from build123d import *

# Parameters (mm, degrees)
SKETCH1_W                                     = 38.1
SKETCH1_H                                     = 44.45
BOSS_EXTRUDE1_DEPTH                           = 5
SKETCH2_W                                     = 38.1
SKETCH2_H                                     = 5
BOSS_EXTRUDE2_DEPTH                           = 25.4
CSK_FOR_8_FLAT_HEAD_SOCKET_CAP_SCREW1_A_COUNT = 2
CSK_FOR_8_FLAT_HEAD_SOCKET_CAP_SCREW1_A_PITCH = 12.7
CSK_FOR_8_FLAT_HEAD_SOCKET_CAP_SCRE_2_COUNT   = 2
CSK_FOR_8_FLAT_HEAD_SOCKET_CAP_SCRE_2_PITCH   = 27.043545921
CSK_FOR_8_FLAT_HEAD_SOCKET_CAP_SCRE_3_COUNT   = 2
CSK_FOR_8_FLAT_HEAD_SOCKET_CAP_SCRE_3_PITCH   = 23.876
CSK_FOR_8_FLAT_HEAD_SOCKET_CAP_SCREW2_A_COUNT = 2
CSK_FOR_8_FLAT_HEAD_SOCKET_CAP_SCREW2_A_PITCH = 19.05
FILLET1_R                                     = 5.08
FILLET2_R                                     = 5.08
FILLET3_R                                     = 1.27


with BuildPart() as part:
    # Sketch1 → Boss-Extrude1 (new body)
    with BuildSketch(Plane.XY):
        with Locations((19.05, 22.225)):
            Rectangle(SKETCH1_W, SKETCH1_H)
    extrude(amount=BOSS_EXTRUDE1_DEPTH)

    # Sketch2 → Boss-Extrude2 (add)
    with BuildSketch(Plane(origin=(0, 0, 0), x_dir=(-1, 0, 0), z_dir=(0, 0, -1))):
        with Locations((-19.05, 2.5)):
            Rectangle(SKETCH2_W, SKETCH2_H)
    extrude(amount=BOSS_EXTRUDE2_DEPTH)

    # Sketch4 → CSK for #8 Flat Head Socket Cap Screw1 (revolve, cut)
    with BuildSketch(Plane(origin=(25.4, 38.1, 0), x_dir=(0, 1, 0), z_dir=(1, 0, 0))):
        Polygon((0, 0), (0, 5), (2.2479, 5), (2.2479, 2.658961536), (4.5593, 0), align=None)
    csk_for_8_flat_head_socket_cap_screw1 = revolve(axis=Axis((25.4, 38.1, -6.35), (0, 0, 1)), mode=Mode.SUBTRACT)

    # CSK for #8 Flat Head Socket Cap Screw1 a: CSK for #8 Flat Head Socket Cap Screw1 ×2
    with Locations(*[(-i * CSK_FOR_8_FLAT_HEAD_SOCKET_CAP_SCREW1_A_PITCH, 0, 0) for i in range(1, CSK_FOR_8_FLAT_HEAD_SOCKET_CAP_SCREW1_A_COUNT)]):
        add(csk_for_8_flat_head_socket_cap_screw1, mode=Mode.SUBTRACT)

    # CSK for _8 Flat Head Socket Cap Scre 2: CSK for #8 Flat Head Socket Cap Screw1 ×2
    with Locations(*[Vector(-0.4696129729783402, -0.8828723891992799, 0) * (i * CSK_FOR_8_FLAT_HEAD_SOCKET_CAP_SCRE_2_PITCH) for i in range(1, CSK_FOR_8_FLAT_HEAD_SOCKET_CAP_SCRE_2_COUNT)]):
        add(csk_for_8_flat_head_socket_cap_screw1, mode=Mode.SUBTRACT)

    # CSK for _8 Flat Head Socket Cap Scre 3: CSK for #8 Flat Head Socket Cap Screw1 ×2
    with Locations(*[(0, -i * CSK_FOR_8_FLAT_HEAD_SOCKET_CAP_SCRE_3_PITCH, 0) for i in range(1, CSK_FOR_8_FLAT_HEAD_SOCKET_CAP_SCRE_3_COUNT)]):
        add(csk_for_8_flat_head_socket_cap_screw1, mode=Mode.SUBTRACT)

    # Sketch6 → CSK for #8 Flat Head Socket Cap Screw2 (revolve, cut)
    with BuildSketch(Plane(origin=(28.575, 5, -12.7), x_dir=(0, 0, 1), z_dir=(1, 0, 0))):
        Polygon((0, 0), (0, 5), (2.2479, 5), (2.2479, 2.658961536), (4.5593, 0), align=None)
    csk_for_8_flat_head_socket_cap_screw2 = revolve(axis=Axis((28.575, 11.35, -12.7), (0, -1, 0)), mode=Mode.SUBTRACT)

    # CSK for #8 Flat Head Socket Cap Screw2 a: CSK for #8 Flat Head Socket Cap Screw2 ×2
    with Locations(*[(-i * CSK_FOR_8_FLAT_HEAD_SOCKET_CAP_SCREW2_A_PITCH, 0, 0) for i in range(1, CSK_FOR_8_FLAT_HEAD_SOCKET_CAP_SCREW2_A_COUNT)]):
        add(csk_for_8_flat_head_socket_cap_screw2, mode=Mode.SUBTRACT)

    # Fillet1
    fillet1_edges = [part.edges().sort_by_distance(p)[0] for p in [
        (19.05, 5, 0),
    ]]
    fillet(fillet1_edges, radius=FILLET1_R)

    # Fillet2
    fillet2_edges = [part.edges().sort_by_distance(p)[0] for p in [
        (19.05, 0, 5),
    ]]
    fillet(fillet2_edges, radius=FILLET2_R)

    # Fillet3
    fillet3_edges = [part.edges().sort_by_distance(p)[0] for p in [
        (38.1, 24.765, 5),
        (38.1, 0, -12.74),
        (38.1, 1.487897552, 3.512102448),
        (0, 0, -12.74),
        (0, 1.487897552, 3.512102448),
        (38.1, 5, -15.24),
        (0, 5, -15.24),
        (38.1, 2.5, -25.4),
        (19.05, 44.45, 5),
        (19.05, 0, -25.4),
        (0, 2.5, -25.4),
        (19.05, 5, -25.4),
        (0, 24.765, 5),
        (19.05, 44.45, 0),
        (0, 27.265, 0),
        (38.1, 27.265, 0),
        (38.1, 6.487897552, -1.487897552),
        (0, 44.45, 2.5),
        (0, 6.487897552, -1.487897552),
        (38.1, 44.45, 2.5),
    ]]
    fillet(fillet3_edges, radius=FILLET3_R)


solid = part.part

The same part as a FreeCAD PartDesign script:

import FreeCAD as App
import Part
import Sketcher
Q = App.Units.Quantity


def edges_at(feature, points):
    """Names of the edges that pass closest to the given points."""
    edges = feature.Shape.Edges
    near = lambda p: min(range(len(edges)), key=lambda i: edges[i].distToShape(Part.Vertex(*p))[0])
    return sorted({f"Edge{near(p) + 1}" for p in points})

doc = App.newDocument("Part")
params = doc.addObject("Spreadsheet::Sheet", "Params")
for row, (alias, value) in enumerate([
    ("sketch1_width", "1.5 in"),
    ("sketch1_height", "1.75 in"),
    ("pad1_length", "5 mm"),
    ("sketch2_width", "1.5 in"),
    ("pad2_length", "1 in"),
    ("groove_angle", "360 deg"),
    ("linearpattern_pitch", "0.5 in"),
    ("linearpattern2_pitch", "27.043546 mm"),
    ("linearpattern3_pitch", "0.94 in"),
    ("groove2_angle", "360 deg"),
    ("linearpattern4_pitch", "0.75 in"),
    ("fillet_radius", "0.2 in"),
    ("fillet2_radius", "0.2 in"),
    ("fillet3_radius", "0.05 in"),
], start=1):
    params.set(f"A{row}", alias)
    params.set(f"B{row}", "=" + value)
    params.setAlias(f"B{row}", alias)

body = doc.addObject("PartDesign::Body", "Body")

# Sketch on XY plane
sketch1 = body.newObject("Sketcher::SketchObject", "Sketch")
sketch1.AttachmentSupport = (doc.getObject("XY_Plane"), [""])
sketch1.MapMode = "FlatFace"
sketch1.addGeometry(Part.LineSegment(App.Vector(0, 44.45, 0), App.Vector(0, 0, 0)), False)
sketch1.addGeometry(Part.LineSegment(App.Vector(0, 0, 0), App.Vector(38.1, 0, 0)), False)
sketch1.addGeometry(Part.LineSegment(App.Vector(38.1, 0, 0), App.Vector(38.1, 44.45, 0)), False)
sketch1.addGeometry(Part.LineSegment(App.Vector(38.1, 44.45, 0), App.Vector(0, 44.45, 0)), False)
sketch1.addConstraint(Sketcher.Constraint("Coincident", 0, 2, 1, 1))
sketch1.addConstraint(Sketcher.Constraint("Coincident", 1, 2, 2, 1))
sketch1.addConstraint(Sketcher.Constraint("Coincident", 2, 2, 3, 1))
sketch1.addConstraint(Sketcher.Constraint("Coincident", 3, 2, 0, 1))
sketch1.addConstraint(Sketcher.Constraint("Vertical", 0))
sketch1.addConstraint(Sketcher.Constraint("Horizontal", 1))
sketch1.addConstraint(Sketcher.Constraint("Vertical", 2))
sketch1.addConstraint(Sketcher.Constraint("Horizontal", 3))
sketch1.addConstraint(Sketcher.Constraint("Coincident", 0, 2, -1, 1))
sketch1.addConstraint(Sketcher.Constraint("DistanceX", 1, 1, 1, 2, Q("1.5 in")))
sketch1.addConstraint(Sketcher.Constraint("DistanceY", 0, 2, 0, 1, Q("1.75 in")))
sketch1.setExpression("Constraints[9]", "Params.sketch1_width")
sketch1.setExpression("Constraints[10]", "Params.sketch1_height")
pad1 = body.newObject("PartDesign::Pad", "Pad")
pad1.Profile = sketch1
pad1.setExpression("Length", "Params.pad1_length")

# Sketch on XY plane
sketch2 = body.newObject("Sketcher::SketchObject", "Sketch001")
sketch2.AttachmentSupport = (doc.getObject("XY_Plane"), [""])
sketch2.MapMode = "FlatFace"
sketch2.addGeometry(Part.LineSegment(App.Vector(38.1, 5, 0), App.Vector(38.1, 0, 0)), False)
sketch2.addGeometry(Part.LineSegment(App.Vector(38.1, 0, 0), App.Vector(0, 0, 0)), False)
sketch2.addGeometry(Part.LineSegment(App.Vector(0, 0, 0), App.Vector(0, 5, 0)), False)
sketch2.addGeometry(Part.LineSegment(App.Vector(0, 5, 0), App.Vector(38.1, 5, 0)), False)
sketch2.addConstraint(Sketcher.Constraint("Coincident", 0, 2, 1, 1))
sketch2.addConstraint(Sketcher.Constraint("Coincident", 1, 2, 2, 1))
sketch2.addConstraint(Sketcher.Constraint("Coincident", 2, 2, 3, 1))
sketch2.addConstraint(Sketcher.Constraint("Coincident", 3, 2, 0, 1))
sketch2.addConstraint(Sketcher.Constraint("Vertical", 0))
sketch2.addConstraint(Sketcher.Constraint("Horizontal", 1))
sketch2.addConstraint(Sketcher.Constraint("Vertical", 2))
sketch2.addConstraint(Sketcher.Constraint("Horizontal", 3))
sketch2.addConstraint(Sketcher.Constraint("Coincident", 1, 2, -1, 1))
sketch2.addConstraint(Sketcher.Constraint("DistanceX", 1, 2, 1, 1, Q("1.5 in")))
sketch2.addConstraint(Sketcher.Constraint("DistanceY", 0, 2, 0, 1, Q("5 mm")))
sketch2.setExpression("Constraints[9]", "Params.sketch2_width")
pad2 = body.newObject("PartDesign::Pad", "Pad001")
pad2.Profile = sketch2
pad2.setExpression("Length", "Params.pad2_length")
pad2.Reversed = True

# Sketch on YZ plane
sketch3 = body.newObject("Sketcher::SketchObject", "Sketch002")
sketch3.AttachmentSupport = (doc.getObject("YZ_Plane"), [""])
sketch3.MapMode = "FlatFace"
sketch3.AttachmentOffset = App.Placement(App.Vector(0, 0, 1 * 25.4), App.Rotation())
sketch3.addGeometry(Part.LineSegment(App.Vector(38.1, 5, 0), App.Vector(38.1, 0, 0)), False)
sketch3.addGeometry(Part.LineSegment(App.Vector(38.1, 0, 0), App.Vector(42.6593, 0, 0)), False)
sketch3.addGeometry(Part.LineSegment(App.Vector(42.6593, 0, 0), App.Vector(40.3479, 2.658962, 0)), False)
sketch3.addGeometry(Part.LineSegment(App.Vector(40.3479, 2.658962, 0), App.Vector(40.3479, 5, 0)), False)
sketch3.addGeometry(Part.LineSegment(App.Vector(40.3479, 5, 0), App.Vector(38.1, 5, 0)), False)
sketch3.addGeometry(Part.LineSegment(App.Vector(38.1, 0, 0), App.Vector(38.1, 5, 0)), True)  # axis
sketch3.addConstraint(Sketcher.Constraint("Coincident", 0, 2, 1, 1))
sketch3.addConstraint(Sketcher.Constraint("Coincident", 1, 2, 2, 1))
sketch3.addConstraint(Sketcher.Constraint("Coincident", 2, 2, 3, 1))
sketch3.addConstraint(Sketcher.Constraint("Coincident", 3, 2, 4, 1))
sketch3.addConstraint(Sketcher.Constraint("Coincident", 4, 2, 0, 1))
sketch3.addConstraint(Sketcher.Constraint("Vertical", 0))
sketch3.addConstraint(Sketcher.Constraint("Horizontal", 1))
sketch3.addConstraint(Sketcher.Constraint("Vertical", 3))
sketch3.addConstraint(Sketcher.Constraint("Horizontal", 4))
sketch3.addConstraint(Sketcher.Constraint("Vertical", 5))
sketch3.addConstraint(Sketcher.Constraint("Coincident", 5, 1, 0, 2))
sketch3.addConstraint(Sketcher.Constraint("PointOnObject", 0, 2, -1))
sketch3.addConstraint(Sketcher.Constraint("Horizontal", 3, 2, 5, 2))
sketch3.addConstraint(Sketcher.Constraint("Angle", 2, Q("131 deg")))
sketch3.addConstraint(Sketcher.Constraint("DistanceX", -1, 1, 0, 2, Q("1.5 in")))
sketch3.addConstraint(Sketcher.Constraint("DistanceX", 1, 1, 1, 2, Q("0.1795 in")))
sketch3.addConstraint(Sketcher.Constraint("DistanceX", 4, 2, 4, 1, Q("0.0885 in")))
sketch3.addConstraint(Sketcher.Constraint("DistanceY", 0, 2, 0, 1, Q("5 mm")))
groove = body.newObject("PartDesign::Groove", "Groove")
groove.Profile = sketch3
groove.ReferenceAxis = (sketch3, ["Axis0"])
groove.setExpression("Angle", "Params.groove_angle")
doc.recompute()

linearpattern = body.newObject("PartDesign::LinearPattern", "LinearPattern")
linearpattern.Originals = [groove]
linearpattern.Direction = (doc.getObject("X_Axis"), [""])
linearpattern.Mode = "offset"
linearpattern.setExpression("Offset", "Params.linearpattern_pitch")
linearpattern.Occurrences = 2
linearpattern.Reversed = True
body.Tip = linearpattern
doc.recompute()

datumline = body.newObject("PartDesign::Line", "DatumLine")
datumline.Placement = App.Placement(App.Vector(0, 0, 0), App.Rotation(App.Vector(0, 0, 1), App.Vector(-0.469612973, -0.882872389, 0)))
linearpattern2 = body.newObject("PartDesign::LinearPattern", "LinearPattern001")
linearpattern2.Originals = [groove]
linearpattern2.Direction = (datumline, [""])
linearpattern2.Mode = "offset"
linearpattern2.setExpression("Offset", "Params.linearpattern2_pitch")
linearpattern2.Occurrences = 2
body.Tip = linearpattern2
doc.recompute()

linearpattern3 = body.newObject("PartDesign::LinearPattern", "LinearPattern002")
linearpattern3.Originals = [groove]
linearpattern3.Direction = (doc.getObject("Y_Axis"), [""])
linearpattern3.Mode = "offset"
linearpattern3.setExpression("Offset", "Params.linearpattern3_pitch")
linearpattern3.Occurrences = 2
linearpattern3.Reversed = True
body.Tip = linearpattern3

# Sketch on YZ plane
sketch4 = body.newObject("Sketcher::SketchObject", "Sketch003")
sketch4.AttachmentSupport = (doc.getObject("YZ_Plane"), [""])
sketch4.MapMode = "FlatFace"
sketch4.AttachmentOffset = App.Placement(App.Vector(0, 0, 1.125 * 25.4), App.Rotation())
sketch4.addGeometry(Part.LineSegment(App.Vector(0, -12.7, 0), App.Vector(5, -12.7, 0)), False)
sketch4.addGeometry(Part.LineSegment(App.Vector(5, -12.7, 0), App.Vector(5, -8.1407, 0)), False)
sketch4.addGeometry(Part.LineSegment(App.Vector(5, -8.1407, 0), App.Vector(2.341038, -10.4521, 0)), False)
sketch4.addGeometry(Part.LineSegment(App.Vector(2.341038, -10.4521, 0), App.Vector(0, -10.4521, 0)), False)
sketch4.addGeometry(Part.LineSegment(App.Vector(0, -10.4521, 0), App.Vector(0, -12.7, 0)), False)
sketch4.addGeometry(Part.LineSegment(App.Vector(5, -12.7, 0), App.Vector(0, -12.7, 0)), True)  # axis
sketch4.addConstraint(Sketcher.Constraint("Coincident", 0, 2, 1, 1))
sketch4.addConstraint(Sketcher.Constraint("Coincident", 1, 2, 2, 1))
sketch4.addConstraint(Sketcher.Constraint("Coincident", 2, 2, 3, 1))
sketch4.addConstraint(Sketcher.Constraint("Coincident", 3, 2, 4, 1))
sketch4.addConstraint(Sketcher.Constraint("Coincident", 4, 2, 0, 1))
sketch4.addConstraint(Sketcher.Constraint("Horizontal", 0))
sketch4.addConstraint(Sketcher.Constraint("Vertical", 1))
sketch4.addConstraint(Sketcher.Constraint("Horizontal", 3))
sketch4.addConstraint(Sketcher.Constraint("Vertical", 4))
sketch4.addConstraint(Sketcher.Constraint("Horizontal", 5))
sketch4.addConstraint(Sketcher.Constraint("Coincident", 5, 1, 0, 2))
sketch4.addConstraint(Sketcher.Constraint("PointOnObject", 3, 2, -2))
sketch4.addConstraint(Sketcher.Constraint("PointOnObject", 5, 2, -2))
sketch4.addConstraint(Sketcher.Constraint("Angle", 2, Q("-139 deg")))
sketch4.addConstraint(Sketcher.Constraint("DistanceY", 0, 2, -1, 1, Q("0.5 in")))
sketch4.addConstraint(Sketcher.Constraint("DistanceY", 1, 1, 1, 2, Q("0.1795 in")))
sketch4.addConstraint(Sketcher.Constraint("DistanceY", 4, 2, 4, 1, Q("0.0885 in")))
sketch4.addConstraint(Sketcher.Constraint("DistanceX", 0, 1, 0, 2, Q("5 mm")))
groove2 = body.newObject("PartDesign::Groove", "Groove001")
groove2.Profile = sketch4
groove2.ReferenceAxis = (sketch4, ["Axis0"])
groove2.setExpression("Angle", "Params.groove2_angle")
doc.recompute()

linearpattern4 = body.newObject("PartDesign::LinearPattern", "LinearPattern003")
linearpattern4.Originals = [groove2]
linearpattern4.Direction = (doc.getObject("X_Axis"), [""])
linearpattern4.Mode = "offset"
linearpattern4.setExpression("Offset", "Params.linearpattern4_pitch")
linearpattern4.Occurrences = 2
linearpattern4.Reversed = True
body.Tip = linearpattern4
doc.recompute()

fillet = body.newObject("PartDesign::Fillet", "Fillet")
fillet.Base = (linearpattern4, edges_at(linearpattern4, [(19.05, 5, 0)]))
fillet.setExpression("Radius", "Params.fillet_radius")
doc.recompute()

fillet2 = body.newObject("PartDesign::Fillet", "Fillet001")
fillet2.Base = (fillet, edges_at(fillet, [(19.05, 0, 5)]))
fillet2.setExpression("Radius", "Params.fillet2_radius")
doc.recompute()

fillet3 = body.newObject("PartDesign::Fillet", "Fillet002")
fillet3.Base = (fillet2, edges_at(fillet2, [
    (38.1, 24.765, 5),
    (38.1, 0, -12.74),
    (38.1, 1.488, 3.512),
    (0, 0, -12.74),
    (0, 1.488, 3.512),
    (38.1, 5, -15.24),
    (0, 5, -15.24),
    (38.1, 2.5, -25.4),
    (19.05, 44.45, 5),
    (19.05, 0, -25.4),
    (0, 2.5, -25.4),
    (19.05, 5, -25.4),
    (0, 24.765, 5),
    (19.05, 44.45, 0),
    (0, 27.265, 0),
    (38.1, 27.265, 0),
    (38.1, 6.488, -1.488),
    (0, 44.45, 2.5),
    (0, 6.488, -1.488),
    (38.1, 44.45, 2.5),
]))
fillet3.setExpression("Radius", "Params.fillet3_radius")

doc.recompute()
